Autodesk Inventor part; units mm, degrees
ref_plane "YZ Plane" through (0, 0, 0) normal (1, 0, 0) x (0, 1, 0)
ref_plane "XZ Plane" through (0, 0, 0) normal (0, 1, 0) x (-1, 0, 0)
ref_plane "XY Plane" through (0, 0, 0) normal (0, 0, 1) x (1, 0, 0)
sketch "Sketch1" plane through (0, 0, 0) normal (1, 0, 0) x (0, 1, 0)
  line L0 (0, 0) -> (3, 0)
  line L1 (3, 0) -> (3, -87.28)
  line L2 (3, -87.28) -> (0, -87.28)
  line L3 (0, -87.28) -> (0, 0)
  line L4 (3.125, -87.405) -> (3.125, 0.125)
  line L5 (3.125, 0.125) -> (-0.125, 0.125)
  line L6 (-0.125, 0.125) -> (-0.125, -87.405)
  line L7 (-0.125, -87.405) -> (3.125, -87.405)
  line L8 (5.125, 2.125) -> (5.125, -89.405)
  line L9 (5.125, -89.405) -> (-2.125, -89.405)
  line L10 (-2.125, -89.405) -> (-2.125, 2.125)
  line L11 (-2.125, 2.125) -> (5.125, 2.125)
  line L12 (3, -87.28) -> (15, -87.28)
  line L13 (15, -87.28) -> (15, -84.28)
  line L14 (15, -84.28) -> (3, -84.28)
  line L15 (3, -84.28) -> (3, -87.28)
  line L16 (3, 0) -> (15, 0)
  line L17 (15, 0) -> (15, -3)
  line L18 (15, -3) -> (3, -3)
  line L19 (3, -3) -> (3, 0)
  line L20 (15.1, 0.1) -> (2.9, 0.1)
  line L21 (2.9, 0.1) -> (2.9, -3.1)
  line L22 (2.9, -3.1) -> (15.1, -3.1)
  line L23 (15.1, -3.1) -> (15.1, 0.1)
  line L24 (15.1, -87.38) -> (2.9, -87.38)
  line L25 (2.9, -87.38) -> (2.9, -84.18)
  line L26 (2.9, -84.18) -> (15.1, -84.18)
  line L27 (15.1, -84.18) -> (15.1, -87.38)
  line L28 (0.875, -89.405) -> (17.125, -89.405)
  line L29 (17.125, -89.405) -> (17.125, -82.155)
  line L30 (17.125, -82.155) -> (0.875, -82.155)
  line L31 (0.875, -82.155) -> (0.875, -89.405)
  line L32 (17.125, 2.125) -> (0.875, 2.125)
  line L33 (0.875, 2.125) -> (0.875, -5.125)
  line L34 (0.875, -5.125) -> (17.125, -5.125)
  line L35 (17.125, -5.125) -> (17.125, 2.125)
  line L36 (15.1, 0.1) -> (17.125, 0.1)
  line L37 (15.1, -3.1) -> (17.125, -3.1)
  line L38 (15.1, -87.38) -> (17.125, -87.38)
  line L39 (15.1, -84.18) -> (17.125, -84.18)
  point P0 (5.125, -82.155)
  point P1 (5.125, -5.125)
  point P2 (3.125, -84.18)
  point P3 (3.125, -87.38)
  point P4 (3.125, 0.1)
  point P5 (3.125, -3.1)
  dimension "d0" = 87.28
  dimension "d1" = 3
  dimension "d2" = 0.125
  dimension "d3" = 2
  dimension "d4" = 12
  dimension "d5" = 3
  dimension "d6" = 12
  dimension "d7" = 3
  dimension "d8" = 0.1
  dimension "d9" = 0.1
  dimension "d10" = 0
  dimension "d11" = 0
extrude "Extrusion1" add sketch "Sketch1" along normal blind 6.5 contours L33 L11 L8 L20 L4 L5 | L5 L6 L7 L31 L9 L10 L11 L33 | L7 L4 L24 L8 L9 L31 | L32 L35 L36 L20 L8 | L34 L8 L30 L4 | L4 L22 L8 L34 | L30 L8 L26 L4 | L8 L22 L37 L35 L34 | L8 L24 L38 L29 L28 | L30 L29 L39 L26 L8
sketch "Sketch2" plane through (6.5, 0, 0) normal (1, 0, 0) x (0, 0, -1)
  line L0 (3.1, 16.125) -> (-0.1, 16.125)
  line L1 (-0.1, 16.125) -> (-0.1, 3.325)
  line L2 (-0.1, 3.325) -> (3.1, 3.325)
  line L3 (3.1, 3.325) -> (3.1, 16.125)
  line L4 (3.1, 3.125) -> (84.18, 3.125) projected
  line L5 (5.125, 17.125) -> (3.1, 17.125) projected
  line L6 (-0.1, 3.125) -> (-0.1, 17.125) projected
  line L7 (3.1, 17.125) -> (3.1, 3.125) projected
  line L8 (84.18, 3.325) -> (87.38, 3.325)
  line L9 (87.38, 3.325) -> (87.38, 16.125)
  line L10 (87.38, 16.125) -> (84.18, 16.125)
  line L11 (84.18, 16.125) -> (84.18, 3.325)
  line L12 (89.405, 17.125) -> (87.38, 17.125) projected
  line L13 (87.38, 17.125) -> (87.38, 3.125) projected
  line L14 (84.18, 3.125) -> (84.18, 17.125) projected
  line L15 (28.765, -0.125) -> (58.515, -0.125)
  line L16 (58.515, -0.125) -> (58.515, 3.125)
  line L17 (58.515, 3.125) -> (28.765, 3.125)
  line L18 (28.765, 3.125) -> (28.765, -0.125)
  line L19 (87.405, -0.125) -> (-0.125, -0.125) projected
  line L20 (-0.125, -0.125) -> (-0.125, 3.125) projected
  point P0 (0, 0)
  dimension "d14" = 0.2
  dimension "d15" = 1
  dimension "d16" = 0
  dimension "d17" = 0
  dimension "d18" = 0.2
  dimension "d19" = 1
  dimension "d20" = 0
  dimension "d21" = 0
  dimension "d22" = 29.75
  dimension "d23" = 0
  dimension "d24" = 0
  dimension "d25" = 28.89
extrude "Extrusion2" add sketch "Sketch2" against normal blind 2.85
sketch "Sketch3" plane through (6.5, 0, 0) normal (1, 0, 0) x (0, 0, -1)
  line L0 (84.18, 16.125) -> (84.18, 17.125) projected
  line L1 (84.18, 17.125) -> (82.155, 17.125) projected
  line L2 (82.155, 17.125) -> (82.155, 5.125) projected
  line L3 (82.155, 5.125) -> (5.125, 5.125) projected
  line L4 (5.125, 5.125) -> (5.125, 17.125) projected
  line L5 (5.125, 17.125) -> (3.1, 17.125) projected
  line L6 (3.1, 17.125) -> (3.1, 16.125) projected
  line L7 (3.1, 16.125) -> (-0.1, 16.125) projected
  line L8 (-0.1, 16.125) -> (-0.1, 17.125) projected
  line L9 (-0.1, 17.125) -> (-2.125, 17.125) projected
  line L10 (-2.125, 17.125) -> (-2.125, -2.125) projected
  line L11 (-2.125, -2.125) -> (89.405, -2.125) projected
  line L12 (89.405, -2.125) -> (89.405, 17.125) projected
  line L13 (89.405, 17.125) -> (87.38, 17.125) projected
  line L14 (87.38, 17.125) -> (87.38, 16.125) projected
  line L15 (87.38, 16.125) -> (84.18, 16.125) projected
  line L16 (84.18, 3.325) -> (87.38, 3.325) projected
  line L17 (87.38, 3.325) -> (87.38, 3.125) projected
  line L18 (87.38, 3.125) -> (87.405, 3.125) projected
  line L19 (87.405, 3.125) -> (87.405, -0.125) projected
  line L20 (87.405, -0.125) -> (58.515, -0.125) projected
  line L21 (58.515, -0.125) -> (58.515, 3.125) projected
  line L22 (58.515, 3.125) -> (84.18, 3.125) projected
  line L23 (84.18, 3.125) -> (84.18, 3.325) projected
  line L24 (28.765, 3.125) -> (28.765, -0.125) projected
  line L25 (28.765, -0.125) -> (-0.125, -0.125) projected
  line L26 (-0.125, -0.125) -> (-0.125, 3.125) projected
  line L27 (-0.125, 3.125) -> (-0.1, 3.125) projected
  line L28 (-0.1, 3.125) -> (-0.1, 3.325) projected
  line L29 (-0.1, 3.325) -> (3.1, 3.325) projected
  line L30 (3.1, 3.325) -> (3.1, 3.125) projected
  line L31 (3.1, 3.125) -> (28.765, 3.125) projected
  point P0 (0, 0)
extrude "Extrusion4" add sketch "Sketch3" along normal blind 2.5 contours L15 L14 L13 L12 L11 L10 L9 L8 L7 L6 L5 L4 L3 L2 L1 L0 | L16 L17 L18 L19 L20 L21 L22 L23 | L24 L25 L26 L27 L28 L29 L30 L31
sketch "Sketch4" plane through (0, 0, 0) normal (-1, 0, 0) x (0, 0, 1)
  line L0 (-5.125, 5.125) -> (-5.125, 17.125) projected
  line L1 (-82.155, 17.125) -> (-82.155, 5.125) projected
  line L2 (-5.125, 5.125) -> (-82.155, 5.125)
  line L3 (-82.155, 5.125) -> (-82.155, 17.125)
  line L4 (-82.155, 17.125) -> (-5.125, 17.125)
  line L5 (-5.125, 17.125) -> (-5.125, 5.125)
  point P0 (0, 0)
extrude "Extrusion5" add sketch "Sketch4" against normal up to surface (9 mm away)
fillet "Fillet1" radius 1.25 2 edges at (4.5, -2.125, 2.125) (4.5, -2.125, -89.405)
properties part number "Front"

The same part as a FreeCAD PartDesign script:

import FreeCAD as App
import Part
import Sketcher
from FreeCAD import Vector


def edges_at(feature, points):
    """Names of the edges that pass closest to the given points."""
    edges = feature.Shape.Edges
    near = lambda p: min(range(len(edges)), key=lambda i: edges[i].distToShape(Part.Vertex(*p))[0])
    return sorted({f"Edge{near(p) + 1}" for p in points})

doc = App.newDocument("Part")
body = doc.addObject("PartDesign::Body", "Body")
body.AllowCompound = True

# Sketch on YZ plane
sketch1 = body.newObject("Sketcher::SketchObject", "Sketch")
sketch1.AttachmentSupport = (doc.getObject("YZ_Plane"), [""])
sketch1.MapMode = "FlatFace"
sketch1.addGeometry(Part.LineSegment(Vector(-2.125, 2.125, 0), Vector(-2.125, -89.405, 0)), False)
sketch1.addGeometry(Part.LineSegment(Vector(-2.125, -89.405, 0), Vector(17.125, -89.405, 0)), False)
sketch1.addGeometry(Part.LineSegment(Vector(17.125, -89.405, 0), Vector(17.125, -87.38, 0)), False)
sketch1.addGeometry(Part.LineSegment(Vector(17.125, -87.38, 0), Vector(3.125, -87.38, 0)), False)
sketch1.addGeometry(Part.LineSegment(Vector(3.125, -87.38, 0), Vector(3.125, -87.405, 0)), False)
sketch1.addGeometry(Part.LineSegment(Vector(3.125, -87.405, 0), Vector(-0.125, -87.405, 0)), False)
sketch1.addGeometry(Part.LineSegment(Vector(-0.125, -87.405, 0), Vector(-0.125, 0.125, 0)), False)
sketch1.addGeometry(Part.LineSegment(Vector(-0.125, 0.125, 0), Vector(3.125, 0.125, 0)), False)
sketch1.addGeometry(Part.LineSegment(Vector(3.125, 0.125, 0), Vector(3.125, 0.1, 0)), False)
sketch1.addGeometry(Part.LineSegment(Vector(3.125, 0.1, 0), Vector(17.125, 0.1, 0)), False)
sketch1.addGeometry(Part.LineSegment(Vector(17.125, 0.1, 0), Vector(17.125, 2.125, 0)), False)
sketch1.addGeometry(Part.LineSegment(Vector(17.125, 2.125, 0), Vector(-2.125, 2.125, 0)), False)
sketch1.addGeometry(Part.LineSegment(Vector(5.125, -82.155, 0), Vector(5.125, -5.125, 0)), False)
sketch1.addGeometry(Part.LineSegment(Vector(5.125, -5.125, 0), Vector(17.125, -5.125, 0)), False)
sketch1.addGeometry(Part.LineSegment(Vector(17.125, -5.125, 0), Vector(17.125, -3.1, 0)), False)
sketch1.addGeometry(Part.LineSegment(Vector(17.125, -3.1, 0), Vector(3.125, -3.1, 0)), False)
sketch1.addGeometry(Part.LineSegment(Vector(3.125, -3.1, 0), Vector(3.125, -84.18, 0)), False)
sketch1.addGeometry(Part.LineSegment(Vector(3.125, -84.18, 0), Vector(17.125, -84.18, 0)), False)
sketch1.addGeometry(Part.LineSegment(Vector(17.125, -84.18, 0), Vector(17.125, -82.155, 0)), False)
sketch1.addGeometry(Part.LineSegment(Vector(17.125, -82.155, 0), Vector(5.125, -82.155, 0)), False)
sketch1.addConstraint(Sketcher.Constraint("Coincident", 0, 2, 1, 1))
sketch1.addConstraint(Sketcher.Constraint("Coincident", 1, 2, 2, 1))
sketch1.addConstraint(Sketcher.Constraint("Coincident", 2, 2, 3, 1))
sketch1.addConstraint(Sketcher.Constraint("Coincident", 3, 2, 4, 1))
sketch1.addConstraint(Sketcher.Constraint("Coincident", 4, 2, 5, 1))
sketch1.addConstraint(Sketcher.Constraint("Coincident", 5, 2, 6, 1))
sketch1.addConstraint(Sketcher.Constraint("Coincident", 6, 2, 7, 1))
sketch1.addConstraint(Sketcher.Constraint("Coincident", 7, 2, 8, 1))
sketch1.addConstraint(Sketcher.Constraint("Coincident", 8, 2, 9, 1))
sketch1.addConstraint(Sketcher.Constraint("Coincident", 9, 2, 10, 1))
sketch1.addConstraint(Sketcher.Constraint("Coincident", 10, 2, 11, 1))
sketch1.addConstraint(Sketcher.Constraint("Coincident", 11, 2, 0, 1))
sketch1.addConstraint(Sketcher.Constraint("Coincident", 12, 2, 13, 1))
sketch1.addConstraint(Sketcher.Constraint("Coincident", 13, 2, 14, 1))
sketch1.addConstraint(Sketcher.Constraint("Coincident", 14, 2, 15, 1))
sketch1.addConstraint(Sketcher.Constraint("Coincident", 15, 2, 16, 1))
sketch1.addConstraint(Sketcher.Constraint("Coincident", 16, 2, 17, 1))
sketch1.addConstraint(Sketcher.Constraint("Coincident", 17, 2, 18, 1))
sketch1.addConstraint(Sketcher.Constraint("Coincident", 18, 2, 19, 1))
sketch1.addConstraint(Sketcher.Constraint("Coincident", 19, 2, 12, 1))
sketch1.addConstraint(Sketcher.Constraint("Vertical", 0))
sketch1.addConstraint(Sketcher.Constraint("Horizontal", 1))
sketch1.addConstraint(Sketcher.Constraint("Vertical", 2))
sketch1.addConstraint(Sketcher.Constraint("Horizontal", 3))
sketch1.addConstraint(Sketcher.Constraint("Vertical", 4))
sketch1.addConstraint(Sketcher.Constraint("Horizontal", 5))
sketch1.addConstraint(Sketcher.Constraint("Vertical", 6))
sketch1.addConstraint(Sketcher.Constraint("Horizontal", 7))
sketch1.addConstraint(Sketcher.Constraint("Vertical", 8))
sketch1.addConstraint(Sketcher.Constraint("Horizontal", 9))
sketch1.addConstraint(Sketcher.Constraint("Vertical", 10))
sketch1.addConstraint(Sketcher.Constraint("Horizontal", 11))
sketch1.addConstraint(Sketcher.Constraint("Vertical", 12))
sketch1.addConstraint(Sketcher.Constraint("Horizontal", 13))
sketch1.addConstraint(Sketcher.Constraint("Vertical", 14))
sketch1.addConstraint(Sketcher.Constraint("Horizontal", 15))
sketch1.addConstraint(Sketcher.Constraint("Vertical", 16))
sketch1.addConstraint(Sketcher.Constraint("Horizontal", 17))
sketch1.addConstraint(Sketcher.Constraint("Vertical", 18))
sketch1.addConstraint(Sketcher.Constraint("Horizontal", 19))
sketch1.addConstraint(Sketcher.Constraint("Vertical", 4, 2, 7, 2))
sketch1.addConstraint(Sketcher.Constraint("Vertical", 2, 2, 9, 2))
sketch1.addConstraint(Sketcher.Constraint("Vertical", 10, 2, 13, 2))
sketch1.addConstraint(Sketcher.Constraint("Vertical", 8, 2, 15, 2))
sketch1.addConstraint(Sketcher.Constraint("Vertical", 14, 2, 17, 2))
sketch1.addConstraint(Sketcher.Constraint("Equal", 4, 8))
sketch1.addConstraint(Sketcher.Constraint("Equal", 2, 10))
sketch1.addConstraint(Sketcher.Constraint("Equal", 10, 14))
sketch1.addConstraint(Sketcher.Constraint("Equal", 14, 18))
sketch1.addConstraint(Sketcher.Constraint("DistanceX", 13, 1, 13, 2, 12.0))
sketch1.addConstraint(Sketcher.Constraint("DistanceY", 0, 2, 4, 2, 2.0))
sketch1.addConstraint(Sketcher.Constraint("DistanceX", 0, 2, 5, 2, 2.0))
sketch1.addConstraint(Sketcher.Constraint("DistanceX", 8, 2, 12, 2, 2.0))
sketch1.addConstraint(Sketcher.Constraint("DistanceY", -1, 1, 8, 2, 0.1))
sketch1.addConstraint(Sketcher.Constraint("DistanceX", 5, 2, -1, 1, 0.125))
sketch1.addConstraint(Sketcher.Constraint("DistanceY", -1, 1, 6, 2, 0.125))
sketch1.addConstraint(Sketcher.Constraint("DistanceX", 1, 1, 1, 2, 19.25))
sketch1.addConstraint(Sketcher.Constraint("DistanceY", 0, 2, 0, 1, 91.53))
sketch1.addConstraint(Sketcher.Constraint("DistanceY", 12, 1, 12, 2, 77.03))
sketch1.addConstraint(Sketcher.Constraint("DistanceY", 14, 2, -1, 1, 3.1))
pad1 = body.newObject("PartDesign::Pad", "Pad")
pad1.Profile = sketch1
pad1.Length = 6.5

# Sketch on YZ plane
sketch2 = body.newObject("Sketcher::SketchObject", "Sketch001")
sketch2.AttachmentSupport = (doc.getObject("YZ_Plane"), [""])
sketch2.MapMode = "FlatFace"
sketch2.AttachmentOffset = App.Placement(Vector(0, 0, 6.5), App.Rotation())
sketch2.addGeometry(Part.LineSegment(Vector(3.325, -3.1, 0), Vector(16.125, -3.1, 0)), False)
sketch2.addGeometry(Part.LineSegment(Vector(16.125, -3.1, 0), Vector(16.125, 0.1, 0)), False)
sketch2.addGeometry(Part.LineSegment(Vector(16.125, 0.1, 0), Vector(3.325, 0.1, 0)), False)
sketch2.addGeometry(Part.LineSegment(Vector(3.325, 0.1, 0), Vector(3.325, -3.1, 0)), False)
sketch2.addGeometry(Part.LineSegment(Vector(16.125, -84.18, 0), Vector(3.325, -84.18, 0)), False)
sketch2.addGeometry(Part.LineSegment(Vector(3.325, -84.18, 0), Vector(3.325, -87.38, 0)), False)
sketch2.addGeometry(Part.LineSegment(Vector(3.325, -87.38, 0), Vector(16.125, -87.38, 0)), False)
sketch2.addGeometry(Part.LineSegment(Vector(16.125, -87.38, 0), Vector(16.125, -84.18, 0)), False)
sketch2.addGeometry(Part.LineSegment(Vector(3.125, -58.515, 0), Vector(3.125, -28.765, 0)), False)
sketch2.addGeometry(Part.LineSegment(Vector(3.125, -28.765, 0), Vector(-0.125, -28.765, 0)), False)
sketch2.addGeometry(Part.LineSegment(Vector(-0.125, -28.765, 0), Vector(-0.125, -58.515, 0)), False)
sketch2.addGeometry(Part.LineSegment(Vector(-0.125, -58.515, 0), Vector(3.125, -58.515, 0)), False)
sketch2.addConstraint(Sketcher.Constraint("Coincident", 0, 2, 1, 1))
sketch2.addConstraint(Sketcher.Constraint("Coincident", 1, 2, 2, 1))
sketch2.addConstraint(Sketcher.Constraint("Coincident", 2, 2, 3, 1))
sketch2.addConstraint(Sketcher.Constraint("Coincident", 3, 2, 0, 1))
sketch2.addConstraint(Sketcher.Constraint("Coincident", 4, 2, 5, 1))
sketch2.addConstraint(Sketcher.Constraint("Coincident", 5, 2, 6, 1))
sketch2.addConstraint(Sketcher.Constraint("Coincident", 6, 2, 7, 1))
sketch2.addConstraint(Sketcher.Constraint("Coincident", 7, 2, 4, 1))
sketch2.addConstraint(Sketcher.Constraint("Coincident", 8, 2, 9, 1))
sketch2.addConstraint(Sketcher.Constraint("Coincident", 9, 2, 10, 1))
sketch2.addConstraint(Sketcher.Constraint("Coincident", 10, 2, 11, 1))
sketch2.addConstraint(Sketcher.Constraint("Coincident", 11, 2, 8, 1))
sketch2.addConstraint(Sketcher.Constraint("Horizontal", 0))
sketch2.addConstraint(Sketcher.Constraint("Vertical", 1))
sketch2.addConstraint(Sketcher.Constraint("Horizontal", 2))
sketch2.addConstraint(Sketcher.Constraint("Vertical", 3))
sketch2.addConstraint(Sketcher.Constraint("Horizontal", 4))
sketch2.addConstraint(Sketcher.Constraint("Vertical", 5))
sketch2.addConstraint(Sketcher.Constraint("Horizontal", 6))
sketch2.addConstraint(Sketcher.Constraint("Vertical", 7))
sketch2.addConstraint(Sketcher.Constraint("Vertical", 8))
sketch2.addConstraint(Sketcher.Constraint("Horizontal", 9))
sketch2.addConstraint(Sketcher.Constraint("Vertical", 10))
sketch2.addConstraint(Sketcher.Constraint("Horizontal", 11))
sketch2.addConstraint(Sketcher.Constraint("Vertical", 3, 2, 4, 2))
sketch2.addConstraint(Sketcher.Constraint("Vertical", 1, 2, 6, 2))
sketch2.addConstraint(Sketcher.Constraint("Equal", 3, 5))
sketch2.addConstraint(Sketcher.Constraint("DistanceY", 8, 1, 8, 2, 29.75))
sketch2.addConstraint(Sketcher.Constraint("DistanceX", 8, 2, 3, 2, 0.2))
sketch2.addConstraint(Sketcher.Constraint("DistanceX", 0, 1, 0, 2, 12.8))
sketch2.addConstraint(Sketcher.Constraint("DistanceY", 1, 1, 1, 2, 3.2))
sketch2.addConstraint(Sketcher.Constraint("DistanceX", 9, 2, 9, 1, 3.25))
sketch2.addConstraint(Sketcher.Constraint("DistanceY", 0, 2, -1, 1, 3.1))
sketch2.addConstraint(Sketcher.Constraint("DistanceY", 4, 2, -1, 1, 84.18))
sketch2.addConstraint(Sketcher.Constraint("DistanceX", -1, 1, 0, 2, 16.125))
sketch2.addConstraint(Sketcher.Constraint("DistanceY", 8, 2, -1, 1, 28.765))
pad2 = body.newObject("PartDesign::Pad", "Pad001")
pad2.Profile = sketch2
pad2.Length = 2.85
pad2.Reversed = True

# Sketch on YZ plane
sketch3 = body.newObject("Sketcher::SketchObject", "Sketch002")
sketch3.AttachmentSupport = (doc.getObject("YZ_Plane"), [""])
sketch3.MapMode = "FlatFace"
sketch3.AttachmentOffset = App.Placement(Vector(0, 0, 6.5), App.Rotation())
sketch3.addGeometry(Part.LineSegment(Vector(16.125, -87.38, 0), Vector(16.125, -84.18, 0)), False)
sketch3.addGeometry(Part.LineSegment(Vector(16.125, -84.18, 0), Vector(17.125, -84.18, 0)), False)
sketch3.addGeometry(Part.LineSegment(Vector(17.125, -84.18, 0), Vector(17.125, -82.155, 0)), False)
sketch3.addGeometry(Part.LineSegment(Vector(17.125, -82.155, 0), Vector(5.125, -82.155, 0)), False)
sketch3.addGeometry(Part.LineSegment(Vector(5.125, -82.155, 0), Vector(5.125, -5.125, 0)), False)
sketch3.addGeometry(Part.LineSegment(Vector(5.125, -5.125, 0), Vector(17.125, -5.125, 0)), False)
sketch3.addGeometry(Part.LineSegment(Vector(17.125, -5.125, 0), Vector(17.125, -3.1, 0)), False)
sketch3.addGeometry(Part.LineSegment(Vector(17.125, -3.1, 0), Vector(16.125, -3.1, 0)), False)
sketch3.addGeometry(Part.LineSegment(Vector(16.125, -3.1, 0), Vector(16.125, 0.1, 0)), False)
sketch3.addGeometry(Part.LineSegment(Vector(16.125, 0.1, 0), Vector(17.125, 0.1, 0)), False)
sketch3.addGeometry(Part.LineSegment(Vector(17.125, 0.1, 0), Vector(17.125, 2.125, 0)), False)
sketch3.addGeometry(Part.LineSegment(Vector(17.125, 2.125, 0), Vector(-2.125, 2.125, 0)), False)
sketch3.addGeometry(Part.LineSegment(Vector(-2.125, 2.125, 0), Vector(-2.125, -89.405, 0)), False)
sketch3.addGeometry(Part.LineSegment(Vector(-2.125, -89.405, 0), Vector(17.125, -89.405, 0)), False)
sketch3.addGeometry(Part.LineSegment(Vector(17.125, -89.405, 0), Vector(17.125, -87.38, 0)), False)
sketch3.addGeometry(Part.LineSegment(Vector(17.125, -87.38, 0), Vector(16.125, -87.38, 0)), False)
sketch3.addConstraint(Sketcher.Constraint("Coincident", 0, 2, 1, 1))
sketch3.addConstraint(Sketcher.Constraint("Coincident", 1, 2, 2, 1))
sketch3.addConstraint(Sketcher.Constraint("Coincident", 2, 2, 3, 1))
sketch3.addConstraint(Sketcher.Constraint("Coincident", 3, 2, 4, 1))
sketch3.addConstraint(Sketcher.Constraint("Coincident", 4, 2, 5, 1))
sketch3.addConstraint(Sketcher.Constraint("Coincident", 5, 2, 6, 1))
sketch3.addConstraint(Sketcher.Constraint("Coincident", 6, 2, 7, 1))
sketch3.addConstraint(Sketcher.Constraint("Coincident", 7, 2, 8, 1))
sketch3.addConstraint(Sketcher.Constraint("Coincident", 8, 2, 9, 1))
sketch3.addConstraint(Sketcher.Constraint("Coincident", 9, 2, 10, 1))
sketch3.addConstraint(Sketcher.Constraint("Coincident", 10, 2, 11, 1))
sketch3.addConstraint(Sketcher.Constraint("Coincident", 11, 2, 12, 1))
sketch3.addConstraint(Sketcher.Constraint("Coincident", 12, 2, 13, 1))
sketch3.addConstraint(Sketcher.Constraint("Coincident", 13, 2, 14, 1))
sketch3.addConstraint(Sketcher.Constraint("Coincident", 14, 2, 15, 1))
sketch3.addConstraint(Sketcher.Constraint("Coincident", 15, 2, 0, 1))
sketch3.addConstraint(Sketcher.Constraint("Vertical", 0))
sketch3.addConstraint(Sketcher.Constraint("Horizontal", 1))
sketch3.addConstraint(Sketcher.Constraint("Vertical", 2))
sketch3.addConstraint(Sketcher.Constraint("Horizontal", 3))
sketch3.addConstraint(Sketcher.Constraint("Vertical", 4))
sketch3.addConstraint(Sketcher.Constraint("Horizontal", 5))
sketch3.addConstraint(Sketcher.Constraint("Vertical", 6))
sketch3.addConstraint(Sketcher.Constraint("Horizontal", 7))
sketch3.addConstraint(Sketcher.Constraint("Vertical", 8))
sketch3.addConstraint(Sketcher.Constraint("Horizontal", 9))
sketch3.addConstraint(Sketcher.Constraint("Vertical", 10))
sketch3.addConstraint(Sketcher.Constraint("Horizontal", 11))
sketch3.addConstraint(Sketcher.Constraint("Vertical", 12))
sketch3.addConstraint(Sketcher.Constraint("Horizontal", 13))
sketch3.addConstraint(Sketcher.Constraint("Vertical", 14))
sketch3.addConstraint(Sketcher.Constraint("Horizontal", 15))
sketch3.addConstraint(Sketcher.Constraint("Vertical", 2, 2, 5, 2))
sketch3.addConstraint(Sketcher.Constraint("Vertical", 0, 2, 7, 2))
sketch3.addConstraint(Sketcher.Constraint("Vertical", 6, 2, 9, 2))
sketch3.addConstraint(Sketcher.Constraint("Vertical", 10, 2, 13, 2))
sketch3.addConstraint(Sketcher.Constraint("Equal", 2, 6))
sketch3.addConstraint(Sketcher.Constraint("Equal", 0, 8))
sketch3.addConstraint(Sketcher.Constraint("Equal", 6, 10))
sketch3.addConstraint(Sketcher.Constraint("Equal", 10, 14))
sketch3.addConstraint(Sketcher.Constraint("DistanceX", 1, 1, 1, 2, 1.0))
sketch3.addConstraint(Sketcher.Constraint("DistanceX", 3, 2, 3, 1, 12.0))
sketch3.addConstraint(Sketcher.Constraint("DistanceY", 0, 1, 0, 2, 3.2))
sketch3.addConstraint(Sketcher.Constraint("DistanceX", 11, 2, 11, 1, 19.25))
sketch3.addConstraint(Sketcher.Constraint("DistanceY", 4, 1, 4, 2, 77.03))
sketch3.addConstraint(Sketcher.Constraint("DistanceY", 12, 2, 12, 1, 91.53))
sketch3.addConstraint(Sketcher.Constraint("DistanceY", 6, 2, -1, 1, 3.1))
sketch3.addConstraint(Sketcher.Constraint("DistanceX", -1, 1, 0, 2, 16.125))
pad3 = body.newObject("PartDesign::Pad", "Pad002")
pad3.Profile = sketch3
pad3.Length = 2.5

# Sketch on YZ plane
sketch4 = body.newObject("Sketcher::SketchObject", "Sketch003")
sketch4.AttachmentSupport = (doc.getObject("YZ_Plane"), [""])
sketch4.MapMode = "FlatFace"
sketch4.addGeometry(Part.LineSegment(Vector(5.125, -82.155, 0), Vector(5.125, -5.125, 0)), False)
sketch4.addGeometry(Part.LineSegment(Vector(5.125, -5.125, 0), Vector(17.125, -5.125, 0)), False)
sketch4.addGeometry(Part.LineSegment(Vector(17.125, -5.125, 0), Vector(17.125, -82.155, 0)), False)
sketch4.addGeometry(Part.LineSegment(Vector(17.125, -82.155, 0), Vector(5.125, -82.155, 0)), False)
sketch4.addConstraint(Sketcher.Constraint("Coincident", 0, 2, 1, 1))
sketch4.addConstraint(Sketcher.Constraint("Coincident", 1, 2, 2, 1))
sketch4.addConstraint(Sketcher.Constraint("Coincident", 2, 2, 3, 1))
sketch4.addConstraint(Sketcher.Constraint("Coincident", 3, 2, 0, 1))
sketch4.addConstraint(Sketcher.Constraint("Vertical", 0))
sketch4.addConstraint(Sketcher.Constraint("Horizontal", 1))
sketch4.addConstraint(Sketcher.Constraint("Vertical", 2))
sketch4.addConstraint(Sketcher.Constraint("Horizontal", 3))
sketch4.addConstraint(Sketcher.Constraint("DistanceX", 1, 1, 1, 2, 12.0))
sketch4.addConstraint(Sketcher.Constraint("DistanceY", 0, 1, 0, 2, 77.03))
sketch4.addConstraint(Sketcher.Constraint("DistanceX", -1, 1, 0, 2, 5.125))
sketch4.addConstraint(Sketcher.Constraint("DistanceY", 0, 2, -1, 1, 5.125))
pad4 = body.newObject("PartDesign::Pad", "Pad003")
pad4.Profile = sketch4
pad4.Length = 9
doc.recompute()

fillet = body.newObject("PartDesign::Fillet", "Fillet")
fillet.Base = (pad4, edges_at(pad4, [(4.5, -2.125, 2.125), (4.5, -2.125, -89.405)]))
fillet.Radius = 1.25

doc.recompute()
